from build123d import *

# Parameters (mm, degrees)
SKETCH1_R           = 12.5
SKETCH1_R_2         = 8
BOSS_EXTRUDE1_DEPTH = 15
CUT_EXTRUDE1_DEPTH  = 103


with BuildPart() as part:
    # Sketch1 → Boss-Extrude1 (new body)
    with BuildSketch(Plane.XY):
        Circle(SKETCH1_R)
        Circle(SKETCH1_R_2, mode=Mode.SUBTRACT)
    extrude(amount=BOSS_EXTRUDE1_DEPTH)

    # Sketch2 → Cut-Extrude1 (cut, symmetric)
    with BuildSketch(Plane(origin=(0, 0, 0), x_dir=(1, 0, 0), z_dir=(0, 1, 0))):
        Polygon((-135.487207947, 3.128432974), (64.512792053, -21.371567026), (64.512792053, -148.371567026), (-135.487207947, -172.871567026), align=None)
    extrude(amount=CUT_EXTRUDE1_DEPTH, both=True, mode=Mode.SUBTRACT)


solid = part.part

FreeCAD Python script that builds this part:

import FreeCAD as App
import Part
import Sketcher

V = App.Vector

doc = App.newDocument("Part")
body = doc.addObject("PartDesign::Body", "Body")

# Sketch on XY plane
sketch1 = doc.addObject("Sketcher::SketchObject", "Sketch")
body.addObject(sketch1)
sketch1.AttachmentSupport = (doc.XY_Plane, [""])
sketch1.MapMode = "FlatFace"
sketch1.addGeometry([
    Part.Circle(V(0, 0, 0), V(0, 0, 1), 12),
    Part.Circle(V(0, 0, 0), V(0, 0, 1), 8),
], False)
sketch1.addConstraint([
    Sketcher.Constraint("Coincident", 0, 3, -1, 1),
    Sketcher.Constraint("Coincident", 1, 3, -1, 1),
    Sketcher.Constraint("Diameter", 0, 25.0),
    Sketcher.Constraint("Diameter", 1, 16.0),
])
pad1 = doc.addObject("PartDesign::Pad", "Pad")
body.addObject(pad1)
pad1.Profile = sketch1
pad1.Length = 15

# Sketch on XZ plane
sketch2 = doc.addObject("Sketcher::SketchObject", "Sketch001")
body.addObject(sketch2)
sketch2.AttachmentSupport = (doc.XZ_Plane, [""])
sketch2.MapMode = "FlatFace"
sketch2.addGeometry([
    Part.LineSegment(V(65, 21, 0), V(-135, -3, 0)),
    Part.LineSegment(V(-135, -3, 0), V(-135, 173, 0)),
    Part.LineSegment(V(-135, 173, 0), V(65, 148, 0)),
    Part.LineSegment(V(65, 148, 0), V(65, 21, 0)),
], False)
sketch2.addConstraint([
    Sketcher.Constraint("Coincident", 0, 2, 1, 1),
    Sketcher.Constraint("Coincident", 1, 2, 2, 1),
    Sketcher.Constraint("Coincident", 2, 2, 3, 1),
    Sketcher.Constraint("Coincident", 3, 2, 0, 1),
    Sketcher.Constraint("Vertical", 1),
    Sketcher.Constraint("Vertical", 3),
    Sketcher.Constraint("Equal", 0, 2),
    Sketcher.Constraint("DistanceY", 1, 1, 1, 2, 176.0),
    Sketcher.Constraint("DistanceY", 3, 2, 3, 1, 127.0),
    Sketcher.Constraint("DistanceX", 1, 2, 2, 2, 200.0),
    Sketcher.Constraint("DistanceX", 0, 2, -1, 1, 135.487208),
    Sketcher.Constraint("DistanceY", 0, 2, -1, 1, 3.128433),
])
pocket1 = doc.addObject("PartDesign::Pocket", "Pocket")
body.addObject(pocket1)
pocket1.Profile = sketch2
pocket1.Length = 206
pocket1.Midplane = True

doc.recompute()
